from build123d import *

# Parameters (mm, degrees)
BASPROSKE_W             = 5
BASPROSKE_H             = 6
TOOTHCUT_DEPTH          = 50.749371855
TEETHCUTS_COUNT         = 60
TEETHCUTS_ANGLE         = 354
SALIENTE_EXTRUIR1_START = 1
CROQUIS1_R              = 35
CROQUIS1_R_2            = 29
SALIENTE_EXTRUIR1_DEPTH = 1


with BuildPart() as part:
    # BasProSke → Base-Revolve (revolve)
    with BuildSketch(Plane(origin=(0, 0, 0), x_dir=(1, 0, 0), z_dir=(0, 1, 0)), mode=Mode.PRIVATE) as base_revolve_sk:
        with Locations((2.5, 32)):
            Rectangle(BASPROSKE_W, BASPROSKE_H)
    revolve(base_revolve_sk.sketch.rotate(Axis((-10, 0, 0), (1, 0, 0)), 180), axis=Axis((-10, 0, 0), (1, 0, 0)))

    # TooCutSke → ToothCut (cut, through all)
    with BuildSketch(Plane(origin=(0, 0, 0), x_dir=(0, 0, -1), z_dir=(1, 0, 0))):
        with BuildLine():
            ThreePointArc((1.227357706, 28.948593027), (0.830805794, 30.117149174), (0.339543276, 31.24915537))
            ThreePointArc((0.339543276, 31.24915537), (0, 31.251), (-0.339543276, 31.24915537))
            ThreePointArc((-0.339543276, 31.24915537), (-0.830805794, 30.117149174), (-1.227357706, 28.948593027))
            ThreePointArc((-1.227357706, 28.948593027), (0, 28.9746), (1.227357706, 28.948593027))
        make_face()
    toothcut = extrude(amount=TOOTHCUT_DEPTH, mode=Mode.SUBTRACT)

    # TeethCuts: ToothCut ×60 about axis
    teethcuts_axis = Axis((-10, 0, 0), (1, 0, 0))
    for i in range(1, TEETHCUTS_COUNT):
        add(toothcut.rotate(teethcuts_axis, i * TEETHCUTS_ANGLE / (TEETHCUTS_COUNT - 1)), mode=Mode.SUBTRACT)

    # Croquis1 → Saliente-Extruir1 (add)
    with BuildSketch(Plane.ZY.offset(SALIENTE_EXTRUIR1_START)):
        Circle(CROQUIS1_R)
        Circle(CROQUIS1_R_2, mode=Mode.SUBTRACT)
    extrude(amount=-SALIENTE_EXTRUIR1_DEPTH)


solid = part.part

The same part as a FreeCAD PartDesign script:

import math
import FreeCAD as App
import Part
import Sketcher

doc = App.newDocument("Part")
body = doc.addObject("PartDesign::Body", "Body")

# Sketch on XZ plane
sketch1 = body.newObject("Sketcher::SketchObject", "Sketch")
sketch1.AttachmentSupport = (doc.getObject("XZ_Plane"), [""])
sketch1.MapMode = "FlatFace"
sketch1.addGeometry([
    Part.LineSegment(App.Vector(0, -35, 0), App.Vector(0, -29, 0)),
    Part.LineSegment(App.Vector(0, -29, 0), App.Vector(5, -29, 0)),
    Part.LineSegment(App.Vector(5, -29, 0), App.Vector(5, -35, 0)),
    Part.LineSegment(App.Vector(5, -35, 0), App.Vector(0, -35, 0)),
], False)
sketch1.addConstraint([
    Sketcher.Constraint("Coincident", 0, 2, 1, 1),
    Sketcher.Constraint("Coincident", 1, 2, 2, 1),
    Sketcher.Constraint("Coincident", 2, 2, 3, 1),
    Sketcher.Constraint("Coincident", 3, 2, 0, 1),
    Sketcher.Constraint("Vertical", 0),
    Sketcher.Constraint("Horizontal", 1),
    Sketcher.Constraint("Vertical", 2),
    Sketcher.Constraint("Horizontal", 3),
    Sketcher.Constraint("PointOnObject", 0, 2, -2),
    Sketcher.Constraint("DistanceX", 1, 1, 1, 2, 5.0),
    Sketcher.Constraint("DistanceY", 0, 1, 0, 2, 6.0),
    Sketcher.Constraint("DistanceY", 0, 2, -1, 1, 29.0),
])
revolution = body.newObject("PartDesign::Revolution", "Revolution")
revolution.Profile = sketch1
revolution.ReferenceAxis = (sketch1, ["H_Axis"])
revolution.Angle = 360

# Sketch on YZ plane
sketch2 = body.newObject("Sketcher::SketchObject", "Sketch001")
sketch2.AttachmentSupport = (doc.getObject("YZ_Plane"), [""])
sketch2.MapMode = "FlatFace"
sketch2.addGeometry([
    Part.ArcOfCircle(Part.Circle(App.Vector(24.7, 13.2, 0), App.Vector(0, 0, 1), 15), math.radians(-73.61), math.radians(-64.18)),
    Part.ArcOfCircle(Part.Circle(App.Vector(0, 0, 0), App.Vector(0, 0, 1), 31.3), math.radians(-0.62), math.radians(0.62)),
    Part.ArcOfCircle(Part.Circle(App.Vector(24.7, -13.2, 0), App.Vector(0, 0, 1), 15), math.radians(64.18), math.radians(73.61)),
    Part.ArcOfCircle(Part.Circle(App.Vector(0, 0, 0), App.Vector(0, 0, 1), 29), math.radians(-2.43), math.radians(2.43)),
], False)
sketch2.addConstraint([
    Sketcher.Constraint("Coincident", 0, 2, 1, 1),
    Sketcher.Constraint("Coincident", 1, 2, 2, 1),
    Sketcher.Constraint("Coincident", 2, 2, 3, 2),
    Sketcher.Constraint("Coincident", 3, 1, 0, 1),
    Sketcher.Constraint("Coincident", 1, 3, -1, 1),
    Sketcher.Constraint("Coincident", 3, 3, -1, 1),
    Sketcher.Constraint("Equal", 0, 2),
    Sketcher.Constraint("Symmetric", 0, 3, 2, 3, -1),
    Sketcher.Constraint("Radius", 0, 15.0),
    Sketcher.Constraint("Radius", 3, 28.9746),
    Sketcher.Constraint("Radius", 1, 31.250993),
    Sketcher.Constraint("DistanceY", 0, 2, 2, 2, 1.566901),
    Sketcher.Constraint("DistanceX", -1, 1, 0, 3, 24.716661),
])
pocket1 = body.newObject("PartDesign::Pocket", "Pocket")
pocket1.Profile = sketch2
pocket1.Type = "ThroughAll"
pocket1.Reversed = True
doc.recompute()

polarpattern = body.newObject("PartDesign::PolarPattern", "PolarPattern")
polarpattern.Originals = [pocket1]
polarpattern.Axis = (doc.getObject("X_Axis"), [""])
polarpattern.Angle = 360
polarpattern.Occurrences = 60
body.Tip = polarpattern

# Sketch on YZ plane
sketch3 = body.newObject("Sketcher::SketchObject", "Sketch002")
sketch3.AttachmentSupport = (doc.getObject("YZ_Plane"), [""])
sketch3.MapMode = "FlatFace"
sketch3.AttachmentOffset = App.Placement(App.Vector(0, 0, -1), App.Rotation())
sketch3.addGeometry([
    Part.Circle(App.Vector(0, 0, 0), App.Vector(0, 0, 1), 35),
    Part.Circle(App.Vector(0, 0, 0), App.Vector(0, 0, 1), 29),
], False)
sketch3.addConstraint([
    Sketcher.Constraint("Coincident", 0, 3, -1, 1),
    Sketcher.Constraint("Coincident", 1, 3, -1, 1),
    Sketcher.Constraint("Diameter", 0, 70.0),
    Sketcher.Constraint("Diameter", 1, 58.0),
])
pad1 = body.newObject("PartDesign::Pad", "Pad")
pad1.Profile = sketch3
pad1.Length = 1

doc.recompute()
